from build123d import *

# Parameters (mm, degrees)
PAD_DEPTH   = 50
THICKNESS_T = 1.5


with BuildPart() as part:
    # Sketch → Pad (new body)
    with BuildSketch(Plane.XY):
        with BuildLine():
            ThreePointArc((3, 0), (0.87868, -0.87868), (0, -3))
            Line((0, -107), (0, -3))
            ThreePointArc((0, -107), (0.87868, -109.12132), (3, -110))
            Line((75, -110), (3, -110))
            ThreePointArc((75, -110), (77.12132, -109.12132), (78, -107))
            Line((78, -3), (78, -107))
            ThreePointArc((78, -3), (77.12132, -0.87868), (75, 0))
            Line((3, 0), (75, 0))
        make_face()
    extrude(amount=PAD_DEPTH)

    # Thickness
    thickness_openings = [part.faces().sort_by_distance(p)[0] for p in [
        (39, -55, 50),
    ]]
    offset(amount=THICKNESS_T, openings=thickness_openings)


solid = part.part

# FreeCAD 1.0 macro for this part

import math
import FreeCAD as App
import Part
import Sketcher

V = App.Vector
Q = App.Units.Quantity


def faces_at(feature, points):
    """Names of the faces that lie closest to the given points."""
    faces = feature.Shape.Faces
    near = lambda p: min(range(len(faces)), key=lambda i: faces[i].distToShape(Part.Vertex(*p))[0])
    return sorted({f"Face{near(p) + 1}" for p in points})

doc = App.newDocument("Part")
body = doc.addObject("PartDesign::Body", "Body")

sketch1 = body.newObject("Sketcher::SketchObject", "Sketch")
sketch1.AttachmentSupport = (doc.getObject("XY_Plane"), [""])
sketch1.MapMode = "FlatFace"
sketch1.addGeometry([
    Part.ArcOfCircle(Part.Circle(V(3, -3, 0), V(0, 0, 1), 3), math.radians(90), math.radians(180)),
    Part.LineSegment(V(0, -3, 0), V(0, -107, 0)),
    Part.ArcOfCircle(Part.Circle(V(3, -107, 0), V(0, 0, 1), 3), math.radians(-180), math.radians(-90)),
    Part.LineSegment(V(3, -110, 0), V(75, -110, 0)),
    Part.ArcOfCircle(Part.Circle(V(75, -107, 0), V(0, 0, 1), 3), math.radians(-90), math.radians(0)),
    Part.LineSegment(V(78, -107, 0), V(78, -3, 0)),
    Part.ArcOfCircle(Part.Circle(V(75, -3, 0), V(0, 0, 1), 3), math.radians(0), math.radians(90)),
    Part.LineSegment(V(75, 0, 0), V(3, 0, 0)),
], False)
sketch1.addConstraint([
    Sketcher.Constraint("Tangent", 0, 2, 1, 1),
    Sketcher.Constraint("Tangent", 1, 2, 2, 1),
    Sketcher.Constraint("Tangent", 2, 2, 3, 1),
    Sketcher.Constraint("Tangent", 3, 2, 4, 1),
    Sketcher.Constraint("Tangent", 4, 2, 5, 1),
    Sketcher.Constraint("Tangent", 5, 2, 6, 1),
    Sketcher.Constraint("Tangent", 6, 2, 7, 1),
    Sketcher.Constraint("Tangent", 7, 2, 0, 1),
    Sketcher.Constraint("Vertical", 1),
    Sketcher.Constraint("Horizontal", 3),
    Sketcher.Constraint("Vertical", 5),
    Sketcher.Constraint("Horizontal", 7),
    Sketcher.Constraint("Equal", 0, 2),
    Sketcher.Constraint("Equal", 2, 4),
    Sketcher.Constraint("Equal", 4, 6),
    Sketcher.Constraint("PointOnObject", 0, 2, -2),
    Sketcher.Constraint("PointOnObject", 6, 2, -1),
    Sketcher.Constraint("Radius", 0, Q("3.000001 mm")),
    Sketcher.Constraint("DistanceX", 3, 1, 3, 2, Q("72 mm")),
    Sketcher.Constraint("DistanceY", 1, 2, 1, 1, Q("104 mm")),
])
pad1 = body.newObject("PartDesign::Pad", "Pad")
pad1.Profile = sketch1
pad1.Length = 50
doc.recompute()

thickness = body.newObject("PartDesign::Thickness", "Thickness")
thickness.Base = (pad1, faces_at(pad1, [(39, -55, 50)]))
thickness.Value = 1.5
thickness.Reversed = False
thickness.Join = "Arc"

doc.recompute()
